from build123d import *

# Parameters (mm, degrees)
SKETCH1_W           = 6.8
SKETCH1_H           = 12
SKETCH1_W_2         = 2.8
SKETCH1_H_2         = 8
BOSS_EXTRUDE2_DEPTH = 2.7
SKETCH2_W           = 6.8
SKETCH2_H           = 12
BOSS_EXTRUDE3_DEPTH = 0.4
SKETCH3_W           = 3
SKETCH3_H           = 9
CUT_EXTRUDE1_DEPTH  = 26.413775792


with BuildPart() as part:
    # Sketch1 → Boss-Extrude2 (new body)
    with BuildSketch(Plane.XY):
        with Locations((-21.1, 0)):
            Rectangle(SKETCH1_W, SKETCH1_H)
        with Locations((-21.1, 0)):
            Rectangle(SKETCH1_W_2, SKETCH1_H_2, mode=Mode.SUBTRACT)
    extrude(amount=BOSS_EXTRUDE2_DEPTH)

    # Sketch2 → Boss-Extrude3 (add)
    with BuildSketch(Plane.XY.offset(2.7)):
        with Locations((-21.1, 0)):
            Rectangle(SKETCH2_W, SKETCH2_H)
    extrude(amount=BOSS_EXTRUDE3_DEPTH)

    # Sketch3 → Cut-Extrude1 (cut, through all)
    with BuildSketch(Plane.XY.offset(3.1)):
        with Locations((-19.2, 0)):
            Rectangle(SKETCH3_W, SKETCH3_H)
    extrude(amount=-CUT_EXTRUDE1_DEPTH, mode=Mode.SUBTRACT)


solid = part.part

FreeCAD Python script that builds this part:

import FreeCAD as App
import Part
import Sketcher

doc = App.newDocument("Part")
body = doc.addObject("PartDesign::Body", "Body")

sketch1 = body.newObject("Sketcher::SketchObject", "Sketch")
sketch1.AttachmentSupport = (doc.getObject("XY_Plane"), [""])
sketch1.MapMode = "FlatFace"
sketch1.addGeometry([
    Part.LineSegment(App.Vector(-24.5, 6, 0), App.Vector(-24.5, -6, 0)),
    Part.LineSegment(App.Vector(-24.5, -6, 0), App.Vector(-17.7, -6, 0)),
    Part.LineSegment(App.Vector(-17.7, -6, 0), App.Vector(-17.7, 6, 0)),
    Part.LineSegment(App.Vector(-17.7, 6, 0), App.Vector(-24.5, 6, 0)),
    Part.LineSegment(App.Vector(-19.7, -4, 0), App.Vector(-22.5, -4, 0)),
    Part.LineSegment(App.Vector(-22.5, -4, 0), App.Vector(-22.5, 4, 0)),
    Part.LineSegment(App.Vector(-22.5, 4, 0), App.Vector(-19.7, 4, 0)),
    Part.LineSegment(App.Vector(-19.7, 4, 0), App.Vector(-19.7, -4, 0)),
], False)
sketch1.addConstraint([
    Sketcher.Constraint("Coincident", 0, 2, 1, 1),
    Sketcher.Constraint("Coincident", 1, 2, 2, 1),
    Sketcher.Constraint("Coincident", 2, 2, 3, 1),
    Sketcher.Constraint("Coincident", 3, 2, 0, 1),
    Sketcher.Constraint("Coincident", 4, 2, 5, 1),
    Sketcher.Constraint("Coincident", 5, 2, 6, 1),
    Sketcher.Constraint("Coincident", 6, 2, 7, 1),
    Sketcher.Constraint("Coincident", 7, 2, 4, 1),
    Sketcher.Constraint("Vertical", 0),
    Sketcher.Constraint("Horizontal", 1),
    Sketcher.Constraint("Vertical", 2),
    Sketcher.Constraint("Horizontal", 3),
    Sketcher.Constraint("Horizontal", 4),
    Sketcher.Constraint("Vertical", 5),
    Sketcher.Constraint("Horizontal", 6),
    Sketcher.Constraint("Vertical", 7),
    Sketcher.Constraint("DistanceY", 0, 2, 0, 1, 12.0),
    Sketcher.Constraint("DistanceY", 5, 1, 5, 2, 8.0),
    Sketcher.Constraint("DistanceX", 1, 1, 1, 2, 6.8),
    Sketcher.Constraint("DistanceX", 4, 2, 4, 1, 2.8),
    Sketcher.Constraint("DistanceY", 0, 2, -1, 1, 6.0),
    Sketcher.Constraint("DistanceY", 4, 2, -1, 1, 4.0),
    Sketcher.Constraint("DistanceX", 0, 2, 4, 2, 2.0),
    Sketcher.Constraint("DistanceX", 0, 2, -1, 1, 24.5),
])
pad1 = body.newObject("PartDesign::Pad", "Pad")
pad1.Profile = sketch1
pad1.Length = 2.7

sketch2 = body.newObject("Sketcher::SketchObject", "Sketch001")
sketch2.AttachmentSupport = (doc.getObject("XY_Plane"), [""])
sketch2.MapMode = "FlatFace"
sketch2.AttachmentOffset = App.Placement(App.Vector(0, 0, 2.7), App.Rotation())
sketch2.addGeometry([
    Part.LineSegment(App.Vector(-24, 6, 0), App.Vector(-24, -6, 0)),
    Part.LineSegment(App.Vector(-24, -6, 0), App.Vector(-18, -6, 0)),
    Part.LineSegment(App.Vector(-18, -6, 0), App.Vector(-18, 6, 0)),
    Part.LineSegment(App.Vector(-18, 6, 0), App.Vector(-24, 6, 0)),
], False)
sketch2.addConstraint([
    Sketcher.Constraint("Coincident", 0, 2, 1, 1),
    Sketcher.Constraint("Coincident", 1, 2, 2, 1),
    Sketcher.Constraint("Coincident", 2, 2, 3, 1),
    Sketcher.Constraint("Coincident", 3, 2, 0, 1),
    Sketcher.Constraint("Vertical", 0),
    Sketcher.Constraint("Horizontal", 1),
    Sketcher.Constraint("Vertical", 2),
    Sketcher.Constraint("Horizontal", 3),
    Sketcher.Constraint("DistanceY", 0, 2, 0, 1, 12.0),
    Sketcher.Constraint("DistanceX", 1, 1, 1, 2, 6.8),
    Sketcher.Constraint("DistanceY", 0, 2, -1, 1, 6.0),
    Sketcher.Constraint("DistanceX", 0, 2, -1, 1, 24.5),
])
pad2 = body.newObject("PartDesign::Pad", "Pad001")
pad2.Profile = sketch2
pad2.Length = 0.4

sketch3 = body.newObject("Sketcher::SketchObject", "Sketch002")
sketch3.AttachmentSupport = (doc.getObject("XY_Plane"), [""])
sketch3.MapMode = "FlatFace"
sketch3.AttachmentOffset = App.Placement(App.Vector(0, 0, 3.1), App.Rotation())
sketch3.addGeometry([
    Part.LineSegment(App.Vector(-20.7, 4.5, 0), App.Vector(-20.7, -4.5, 0)),
    Part.LineSegment(App.Vector(-20.7, -4.5, 0), App.Vector(-17.7, -4.5, 0)),
    Part.LineSegment(App.Vector(-17.7, -4.5, 0), App.Vector(-17.7, 4.5, 0)),
    Part.LineSegment(App.Vector(-17.7, 4.5, 0), App.Vector(-20.7, 4.5, 0)),
], False)
sketch3.addConstraint([
    Sketcher.Constraint("Coincident", 0, 2, 1, 1),
    Sketcher.Constraint("Coincident", 1, 2, 2, 1),
    Sketcher.Constraint("Coincident", 2, 2, 3, 1),
    Sketcher.Constraint("Coincident", 3, 2, 0, 1),
    Sketcher.Constraint("Vertical", 0),
    Sketcher.Constraint("Horizontal", 1),
    Sketcher.Constraint("Vertical", 2),
    Sketcher.Constraint("Horizontal", 3),
    Sketcher.Constraint("DistanceX", 1, 1, 1, 2, 3.0),
    Sketcher.Constraint("DistanceY", 0, 2, 0, 1, 9.0),
    Sketcher.Constraint("DistanceX", 0, 2, -1, 1, 20.7),
    Sketcher.Constraint("DistanceY", 0, 2, -1, 1, 4.5),
])
pocket1 = body.newObject("PartDesign::Pocket", "Pocket")
pocket1.Profile = sketch3
pocket1.Type = "ThroughAll"

doc.recompute()
